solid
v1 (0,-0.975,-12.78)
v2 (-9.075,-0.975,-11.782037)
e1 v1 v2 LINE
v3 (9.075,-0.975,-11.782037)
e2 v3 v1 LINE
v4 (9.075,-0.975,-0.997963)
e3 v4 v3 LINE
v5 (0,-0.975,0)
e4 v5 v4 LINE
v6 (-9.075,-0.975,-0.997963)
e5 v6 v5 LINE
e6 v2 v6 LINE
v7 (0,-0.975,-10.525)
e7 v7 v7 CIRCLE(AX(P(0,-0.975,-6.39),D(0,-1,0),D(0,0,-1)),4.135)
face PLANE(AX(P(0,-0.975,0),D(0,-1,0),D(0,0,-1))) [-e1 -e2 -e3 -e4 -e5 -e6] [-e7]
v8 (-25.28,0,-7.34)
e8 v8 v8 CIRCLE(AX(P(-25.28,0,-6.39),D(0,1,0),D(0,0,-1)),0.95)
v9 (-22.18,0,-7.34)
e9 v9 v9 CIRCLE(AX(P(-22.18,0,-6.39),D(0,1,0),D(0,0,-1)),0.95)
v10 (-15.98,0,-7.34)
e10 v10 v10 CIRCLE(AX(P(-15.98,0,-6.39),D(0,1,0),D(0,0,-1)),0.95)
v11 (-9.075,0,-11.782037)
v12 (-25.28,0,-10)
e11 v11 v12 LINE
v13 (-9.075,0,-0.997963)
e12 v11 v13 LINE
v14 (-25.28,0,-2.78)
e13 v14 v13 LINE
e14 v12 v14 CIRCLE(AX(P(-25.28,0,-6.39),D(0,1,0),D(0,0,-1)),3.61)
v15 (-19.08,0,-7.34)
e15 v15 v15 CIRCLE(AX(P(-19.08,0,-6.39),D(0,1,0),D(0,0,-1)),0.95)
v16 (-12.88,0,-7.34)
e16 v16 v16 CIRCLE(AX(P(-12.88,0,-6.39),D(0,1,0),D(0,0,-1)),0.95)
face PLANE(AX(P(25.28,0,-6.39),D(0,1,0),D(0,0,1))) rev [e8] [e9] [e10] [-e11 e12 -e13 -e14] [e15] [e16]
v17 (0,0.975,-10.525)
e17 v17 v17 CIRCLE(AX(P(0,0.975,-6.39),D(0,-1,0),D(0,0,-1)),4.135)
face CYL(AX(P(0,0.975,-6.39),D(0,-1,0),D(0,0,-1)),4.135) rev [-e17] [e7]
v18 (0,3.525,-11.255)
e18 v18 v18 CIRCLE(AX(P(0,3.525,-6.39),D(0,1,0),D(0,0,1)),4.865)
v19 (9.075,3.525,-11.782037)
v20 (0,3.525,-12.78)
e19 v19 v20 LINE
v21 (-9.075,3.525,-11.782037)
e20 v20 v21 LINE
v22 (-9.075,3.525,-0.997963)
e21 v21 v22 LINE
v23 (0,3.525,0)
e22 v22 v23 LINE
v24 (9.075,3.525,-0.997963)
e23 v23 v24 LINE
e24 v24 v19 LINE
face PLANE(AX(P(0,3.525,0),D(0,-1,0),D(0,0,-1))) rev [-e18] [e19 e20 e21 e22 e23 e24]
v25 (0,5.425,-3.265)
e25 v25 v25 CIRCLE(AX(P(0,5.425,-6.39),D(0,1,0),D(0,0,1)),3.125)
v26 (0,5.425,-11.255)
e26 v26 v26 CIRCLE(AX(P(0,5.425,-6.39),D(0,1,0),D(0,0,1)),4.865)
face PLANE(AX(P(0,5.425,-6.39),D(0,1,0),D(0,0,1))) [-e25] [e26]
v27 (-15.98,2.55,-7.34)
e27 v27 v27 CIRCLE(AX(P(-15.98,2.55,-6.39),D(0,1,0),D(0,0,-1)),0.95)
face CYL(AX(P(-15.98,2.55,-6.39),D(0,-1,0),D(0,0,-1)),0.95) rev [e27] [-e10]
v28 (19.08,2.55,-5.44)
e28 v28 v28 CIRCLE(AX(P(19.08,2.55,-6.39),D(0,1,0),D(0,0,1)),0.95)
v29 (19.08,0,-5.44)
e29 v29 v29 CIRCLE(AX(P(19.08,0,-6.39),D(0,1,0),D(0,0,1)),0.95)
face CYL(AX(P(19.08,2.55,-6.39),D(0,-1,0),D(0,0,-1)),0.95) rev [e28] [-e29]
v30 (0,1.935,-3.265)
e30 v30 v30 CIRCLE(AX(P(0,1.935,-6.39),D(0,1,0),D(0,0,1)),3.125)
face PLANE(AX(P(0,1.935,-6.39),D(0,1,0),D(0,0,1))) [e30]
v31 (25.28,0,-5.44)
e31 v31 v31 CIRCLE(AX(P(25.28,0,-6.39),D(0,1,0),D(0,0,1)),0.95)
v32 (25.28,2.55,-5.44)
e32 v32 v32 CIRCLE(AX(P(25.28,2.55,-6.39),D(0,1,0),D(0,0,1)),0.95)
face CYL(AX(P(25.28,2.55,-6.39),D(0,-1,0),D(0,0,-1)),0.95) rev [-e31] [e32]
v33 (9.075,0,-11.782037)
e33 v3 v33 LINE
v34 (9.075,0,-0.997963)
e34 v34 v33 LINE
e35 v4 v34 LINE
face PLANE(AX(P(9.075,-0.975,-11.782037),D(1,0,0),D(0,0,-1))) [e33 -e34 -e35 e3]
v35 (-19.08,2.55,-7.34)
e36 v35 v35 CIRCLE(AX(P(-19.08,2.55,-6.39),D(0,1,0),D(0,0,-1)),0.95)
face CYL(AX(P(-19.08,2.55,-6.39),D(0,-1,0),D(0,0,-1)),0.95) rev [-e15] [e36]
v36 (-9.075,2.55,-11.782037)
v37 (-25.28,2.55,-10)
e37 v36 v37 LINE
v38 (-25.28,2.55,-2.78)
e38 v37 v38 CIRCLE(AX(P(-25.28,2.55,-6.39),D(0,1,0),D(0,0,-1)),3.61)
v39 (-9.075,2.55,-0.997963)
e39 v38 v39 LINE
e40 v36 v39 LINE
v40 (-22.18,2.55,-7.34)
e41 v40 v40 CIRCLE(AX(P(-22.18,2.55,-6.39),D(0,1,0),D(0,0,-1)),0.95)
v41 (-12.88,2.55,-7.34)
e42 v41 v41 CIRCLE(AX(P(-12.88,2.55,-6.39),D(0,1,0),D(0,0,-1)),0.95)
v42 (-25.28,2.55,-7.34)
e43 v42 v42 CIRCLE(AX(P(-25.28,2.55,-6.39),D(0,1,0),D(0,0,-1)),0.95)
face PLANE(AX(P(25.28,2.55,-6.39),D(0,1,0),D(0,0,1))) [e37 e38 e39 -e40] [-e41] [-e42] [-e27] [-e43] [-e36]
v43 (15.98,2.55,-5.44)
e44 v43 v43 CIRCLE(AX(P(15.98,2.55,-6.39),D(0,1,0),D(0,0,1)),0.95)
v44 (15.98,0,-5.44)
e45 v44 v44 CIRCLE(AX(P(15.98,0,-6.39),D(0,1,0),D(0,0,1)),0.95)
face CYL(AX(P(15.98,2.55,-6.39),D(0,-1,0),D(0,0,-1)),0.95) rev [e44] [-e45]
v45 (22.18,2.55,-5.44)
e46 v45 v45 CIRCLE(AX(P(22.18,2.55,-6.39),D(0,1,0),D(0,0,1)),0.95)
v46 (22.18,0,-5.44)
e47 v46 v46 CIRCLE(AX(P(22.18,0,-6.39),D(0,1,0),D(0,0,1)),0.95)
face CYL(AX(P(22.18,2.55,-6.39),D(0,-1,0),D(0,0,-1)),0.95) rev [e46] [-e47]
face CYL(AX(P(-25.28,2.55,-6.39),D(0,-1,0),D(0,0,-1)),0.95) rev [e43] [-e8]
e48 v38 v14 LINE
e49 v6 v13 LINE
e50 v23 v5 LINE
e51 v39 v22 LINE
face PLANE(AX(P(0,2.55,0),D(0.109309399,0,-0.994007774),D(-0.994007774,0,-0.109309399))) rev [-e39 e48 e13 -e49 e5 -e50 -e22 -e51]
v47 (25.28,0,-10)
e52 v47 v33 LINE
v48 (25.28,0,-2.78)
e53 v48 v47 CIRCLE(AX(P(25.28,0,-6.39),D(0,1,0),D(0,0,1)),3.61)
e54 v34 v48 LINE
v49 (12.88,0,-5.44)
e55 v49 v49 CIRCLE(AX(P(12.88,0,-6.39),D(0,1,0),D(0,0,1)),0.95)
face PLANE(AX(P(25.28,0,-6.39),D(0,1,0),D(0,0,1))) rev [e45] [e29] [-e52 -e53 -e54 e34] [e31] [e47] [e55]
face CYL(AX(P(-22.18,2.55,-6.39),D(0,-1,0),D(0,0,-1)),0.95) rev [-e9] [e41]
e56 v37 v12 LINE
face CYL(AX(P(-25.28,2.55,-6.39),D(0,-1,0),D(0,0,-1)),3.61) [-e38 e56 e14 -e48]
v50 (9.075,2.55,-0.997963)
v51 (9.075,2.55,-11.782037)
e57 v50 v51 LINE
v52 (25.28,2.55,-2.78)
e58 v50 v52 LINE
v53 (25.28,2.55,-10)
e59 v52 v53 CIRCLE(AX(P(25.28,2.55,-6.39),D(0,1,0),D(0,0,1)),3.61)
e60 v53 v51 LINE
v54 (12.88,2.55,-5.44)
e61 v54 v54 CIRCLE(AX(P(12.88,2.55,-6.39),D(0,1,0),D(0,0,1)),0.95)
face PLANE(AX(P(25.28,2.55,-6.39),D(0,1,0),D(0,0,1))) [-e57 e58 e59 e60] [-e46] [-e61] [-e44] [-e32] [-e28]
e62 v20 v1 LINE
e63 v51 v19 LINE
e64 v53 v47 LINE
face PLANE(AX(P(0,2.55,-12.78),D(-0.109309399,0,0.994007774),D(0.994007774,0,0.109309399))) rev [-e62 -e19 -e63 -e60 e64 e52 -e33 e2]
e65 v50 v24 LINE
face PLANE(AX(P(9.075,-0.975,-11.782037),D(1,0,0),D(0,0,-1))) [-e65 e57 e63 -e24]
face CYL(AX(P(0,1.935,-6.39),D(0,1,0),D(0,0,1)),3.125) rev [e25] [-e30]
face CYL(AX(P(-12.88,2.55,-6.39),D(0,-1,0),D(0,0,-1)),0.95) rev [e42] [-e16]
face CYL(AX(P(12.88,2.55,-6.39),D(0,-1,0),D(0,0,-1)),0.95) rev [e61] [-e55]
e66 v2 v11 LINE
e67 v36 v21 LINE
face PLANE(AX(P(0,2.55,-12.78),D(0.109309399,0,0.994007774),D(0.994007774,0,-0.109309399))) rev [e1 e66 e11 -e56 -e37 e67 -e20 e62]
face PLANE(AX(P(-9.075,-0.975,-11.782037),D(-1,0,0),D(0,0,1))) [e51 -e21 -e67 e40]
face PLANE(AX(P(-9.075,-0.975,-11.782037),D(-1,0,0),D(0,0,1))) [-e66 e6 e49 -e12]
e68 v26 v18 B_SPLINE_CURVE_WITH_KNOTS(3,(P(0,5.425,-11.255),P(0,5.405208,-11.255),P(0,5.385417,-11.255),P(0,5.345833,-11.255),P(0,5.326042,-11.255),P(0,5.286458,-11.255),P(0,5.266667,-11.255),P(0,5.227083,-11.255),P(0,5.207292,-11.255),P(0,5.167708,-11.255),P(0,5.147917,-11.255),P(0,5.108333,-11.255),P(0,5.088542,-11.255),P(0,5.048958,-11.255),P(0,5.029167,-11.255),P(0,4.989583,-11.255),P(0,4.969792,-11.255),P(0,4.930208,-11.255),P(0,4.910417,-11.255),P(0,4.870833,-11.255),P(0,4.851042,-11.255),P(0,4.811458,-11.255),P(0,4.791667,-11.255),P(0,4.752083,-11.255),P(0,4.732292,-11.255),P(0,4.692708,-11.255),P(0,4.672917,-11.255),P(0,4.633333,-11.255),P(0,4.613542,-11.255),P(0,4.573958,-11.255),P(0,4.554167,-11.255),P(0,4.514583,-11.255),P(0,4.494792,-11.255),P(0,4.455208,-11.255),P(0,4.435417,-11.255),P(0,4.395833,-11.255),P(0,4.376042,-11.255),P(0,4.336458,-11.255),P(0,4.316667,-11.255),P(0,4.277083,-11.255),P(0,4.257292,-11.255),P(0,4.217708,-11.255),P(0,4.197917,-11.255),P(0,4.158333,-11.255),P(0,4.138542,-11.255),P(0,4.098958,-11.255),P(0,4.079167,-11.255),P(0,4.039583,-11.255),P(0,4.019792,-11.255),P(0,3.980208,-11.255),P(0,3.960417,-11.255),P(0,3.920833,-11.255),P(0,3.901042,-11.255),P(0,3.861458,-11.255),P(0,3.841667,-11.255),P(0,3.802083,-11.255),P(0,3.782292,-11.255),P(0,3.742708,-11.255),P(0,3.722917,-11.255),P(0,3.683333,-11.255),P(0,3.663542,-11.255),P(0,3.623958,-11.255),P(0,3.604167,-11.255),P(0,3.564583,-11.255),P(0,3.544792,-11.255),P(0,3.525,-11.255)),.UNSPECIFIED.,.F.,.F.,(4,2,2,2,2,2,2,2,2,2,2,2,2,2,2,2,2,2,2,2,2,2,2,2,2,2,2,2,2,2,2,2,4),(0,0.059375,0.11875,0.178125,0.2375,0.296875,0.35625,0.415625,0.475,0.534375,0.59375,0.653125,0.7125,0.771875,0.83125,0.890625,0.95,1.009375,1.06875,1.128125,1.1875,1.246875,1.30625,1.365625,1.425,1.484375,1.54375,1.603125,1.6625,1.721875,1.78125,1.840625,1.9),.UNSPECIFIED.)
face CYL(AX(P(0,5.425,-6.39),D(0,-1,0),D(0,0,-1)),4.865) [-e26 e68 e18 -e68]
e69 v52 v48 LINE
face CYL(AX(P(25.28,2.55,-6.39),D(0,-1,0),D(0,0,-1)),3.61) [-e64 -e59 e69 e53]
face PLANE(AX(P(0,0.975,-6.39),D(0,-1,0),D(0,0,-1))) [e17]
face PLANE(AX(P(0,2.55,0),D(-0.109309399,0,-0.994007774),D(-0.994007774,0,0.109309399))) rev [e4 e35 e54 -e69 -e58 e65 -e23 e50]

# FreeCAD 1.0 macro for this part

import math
import FreeCAD as App
import Part
import Sketcher

V = App.Vector
Q = App.Units.Quantity

doc = App.newDocument("Part")
params = doc.addObject("Spreadsheet::Sheet", "Params")
for row, (alias, value) in enumerate([
    ("sketch1_diameter", "1.9 mm"),
    ("sketch1_radius", "3.61 mm"),
    ("pad1_length", "2.55 mm"),
    ("pad2_length", "0.975 mm"),
    ("pad2_length2", "3.525 mm"),
    ("sketch3_diameter", "8.27 mm"),
    ("pocket1_length", "1.95 mm"),
    ("sketch4_diameter", "9.73 mm"),
    ("pad3_length", "1.9 mm"),
    ("sketch5_diameter", "6.25 mm"),
    ("pocket2_length", "3.49 mm"),
], start=1):
    params.set(f"A{row}", alias)
    params.set(f"B{row}", "=" + value)
    params.setAlias(f"B{row}", alias)

body = doc.addObject("PartDesign::Body", "Body")

# Sketch on XZ plane
sketch1 = body.newObject("Sketcher::SketchObject", "Sketch")
sketch1.AttachmentSupport = (doc.getObject("XZ_Plane"), [""])
sketch1.MapMode = "FlatFace"
sketch1.addGeometry(Part.LineSegment(V(25.3, -10, 0), V(0, -12.8, 0)), False)
sketch1.addGeometry(Part.LineSegment(V(0, -12.8, 0), V(-25.3, -10, 0)), False)
sketch1.addGeometry(Part.ArcOfCircle(Part.Circle(V(-25.3, -6.4, 0), V(0, 0, 1), 3.6), math.radians(90), math.radians(270)), False)
sketch1.addGeometry(Part.LineSegment(V(-25.3, -2.8, 0), V(0, 0, 0)), False)
sketch1.addGeometry(Part.LineSegment(V(0, 0, 0), V(25.3, -2.8, 0)), False)
sketch1.addGeometry(Part.ArcOfCircle(Part.Circle(V(25.3, -6.4, 0), V(0, 0, 1), 3.6), math.radians(-90), math.radians(90)), False)
sketch1.addGeometry(Part.Circle(V(25.3, -6.4, 0), V(0, 0, 1), 0.9), False)
sketch1.addGeometry(Part.Circle(V(22.2, -6.4, 0), V(0, 0, 1), 0.9), False)
sketch1.addGeometry(Part.Circle(V(19.1, -6.4, 0), V(0, 0, 1), 0.9), False)
sketch1.addGeometry(Part.Circle(V(16, -6.4, 0), V(0, 0, 1), 0.9), False)
sketch1.addGeometry(Part.Circle(V(12.9, -6.4, 0), V(0, 0, 1), 0.9), False)
sketch1.addGeometry(Part.Circle(V(-12.9, -6.4, 0), V(0, 0, 1), 0.9), False)
sketch1.addGeometry(Part.Circle(V(-16, -6.4, 0), V(0, 0, 1), 0.9), False)
sketch1.addGeometry(Part.Circle(V(-19.1, -6.4, 0), V(0, 0, 1), 0.9), False)
sketch1.addGeometry(Part.Circle(V(-22.2, -6.4, 0), V(0, 0, 1), 0.9), False)
sketch1.addGeometry(Part.Circle(V(-25.3, -6.4, 0), V(0, 0, 1), 0.9), False)
sketch1.addConstraint(Sketcher.Constraint("Coincident", 0, 2, 1, 1))
sketch1.addConstraint(Sketcher.Constraint("Coincident", 1, 2, 2, 2))
sketch1.addConstraint(Sketcher.Constraint("Coincident", 2, 1, 3, 1))
sketch1.addConstraint(Sketcher.Constraint("Coincident", 3, 2, 4, 1))
sketch1.addConstraint(Sketcher.Constraint("Coincident", 4, 2, 5, 2))
sketch1.addConstraint(Sketcher.Constraint("Coincident", 5, 1, 0, 1))
sketch1.addConstraint(Sketcher.Constraint("Coincident", 3, 2, -1, 1))
sketch1.addConstraint(Sketcher.Constraint("Coincident", 6, 3, 5, 3))
sketch1.addConstraint(Sketcher.Constraint("Coincident", 15, 3, 2, 3))
sketch1.addConstraint(Sketcher.Constraint("Equal", 2, 5))
sketch1.addConstraint(Sketcher.Constraint("Equal", 6, 7))
sketch1.addConstraint(Sketcher.Constraint("Equal", 7, 8))
sketch1.addConstraint(Sketcher.Constraint("Equal", 8, 9))
sketch1.addConstraint(Sketcher.Constraint("Equal", 9, 10))
sketch1.addConstraint(Sketcher.Constraint("Equal", 10, 11))
sketch1.addConstraint(Sketcher.Constraint("Equal", 11, 12))
sketch1.addConstraint(Sketcher.Constraint("Equal", 12, 13))
sketch1.addConstraint(Sketcher.Constraint("Equal", 13, 14))
sketch1.addConstraint(Sketcher.Constraint("Equal", 14, 15))
sketch1.addConstraint(Sketcher.Constraint("Symmetric", 2, 3, 5, 3, -2))
sketch1.addConstraint(Sketcher.Constraint("Symmetric", 10, 3, 11, 3, -2))
sketch1.addConstraint(Sketcher.Constraint("Symmetric", 9, 3, 12, 3, -2))
sketch1.addConstraint(Sketcher.Constraint("Symmetric", 8, 3, 13, 3, -2))
sketch1.addConstraint(Sketcher.Constraint("Symmetric", 7, 3, 14, 3, -2))
sketch1.addConstraint(Sketcher.Constraint("PointOnObject", 0, 2, -2))
sketch1.addConstraint(Sketcher.Constraint("Parallel", 0, 3))
sketch1.addConstraint(Sketcher.Constraint("Parallel", 1, 4))
sketch1.addConstraint(Sketcher.Constraint("Horizontal", 6, 3, 7, 3))
sketch1.addConstraint(Sketcher.Constraint("Horizontal", 7, 3, 8, 3))
sketch1.addConstraint(Sketcher.Constraint("Horizontal", 8, 3, 9, 3))
sketch1.addConstraint(Sketcher.Constraint("Horizontal", 9, 3, 10, 3))
sketch1.addConstraint(Sketcher.Constraint("Vertical", 15, 3, 1, 2))
sketch1.addConstraint(Sketcher.Constraint("Vertical", 1, 2, 2, 1))
sketch1.addConstraint(Sketcher.Constraint("Vertical", 6, 3, 4, 2))
sketch1.addConstraint(Sketcher.Constraint("Diameter", 6, Q("1.9 mm")))
sketch1.addConstraint(Sketcher.Constraint("Radius", 2, Q("3.61 mm")))
sketch1.addConstraint(Sketcher.Constraint("DistanceY", 1, 2, -1, 1, Q("10 mm")))
sketch1.addConstraint(Sketcher.Constraint("DistanceX", 7, 3, 5, 3, Q("3.1 mm")))
sketch1.addConstraint(Sketcher.Constraint("DistanceX", 8, 3, 7, 3, Q("3.1 mm")))
sketch1.addConstraint(Sketcher.Constraint("DistanceX", 9, 3, 8, 3, Q("3.1 mm")))
sketch1.addConstraint(Sketcher.Constraint("DistanceX", 10, 3, 9, 3, Q("3.1 mm")))
sketch1.addConstraint(Sketcher.Constraint("DistanceX", 2, 3, -1, 1, Q("25.28 mm")))
sketch1.setExpression("Constraints[34]", "Params.sketch1_diameter")
sketch1.setExpression("Constraints[35]", "Params.sketch1_radius")
pad1 = body.newObject("PartDesign::Pad", "Pad")
pad1.Profile = sketch1
pad1.setExpression("Length", "Params.pad1_length")
pad1.Reversed = True

# Sketch on XZ plane
sketch2 = body.newObject("Sketcher::SketchObject", "Sketch001")
sketch2.AttachmentSupport = (doc.getObject("XZ_Plane"), [""])
sketch2.MapMode = "FlatFace"
sketch2.AttachmentOffset = App.Placement(V(0, 0, -2.55), App.Rotation())
sketch2.addGeometry(Part.LineSegment(V(-9, -12, 0), V(-9, -1, 0)), False)
sketch2.addGeometry(Part.LineSegment(V(-9, -1, 0), V(0, 0, 0)), False)
sketch2.addGeometry(Part.LineSegment(V(0, 0, 0), V(9, -1, 0)), False)
sketch2.addGeometry(Part.LineSegment(V(9, -1, 0), V(9, -12, 0)), False)
sketch2.addGeometry(Part.LineSegment(V(9, -12, 0), V(0, -13, 0)), False)
sketch2.addGeometry(Part.LineSegment(V(0, -13, 0), V(-9, -12, 0)), False)
sketch2.addConstraint(Sketcher.Constraint("Coincident", 0, 2, 1, 1))
sketch2.addConstraint(Sketcher.Constraint("Coincident", 1, 2, 2, 1))
sketch2.addConstraint(Sketcher.Constraint("Coincident", 2, 2, 3, 1))
sketch2.addConstraint(Sketcher.Constraint("Coincident", 3, 2, 4, 1))
sketch2.addConstraint(Sketcher.Constraint("Coincident", 4, 2, 5, 1))
sketch2.addConstraint(Sketcher.Constraint("Coincident", 5, 2, 0, 1))
sketch2.addConstraint(Sketcher.Constraint("Vertical", 0))
sketch2.addConstraint(Sketcher.Constraint("Vertical", 3))
sketch2.addConstraint(Sketcher.Constraint("Coincident", 1, 2, -1, 1))
sketch2.addConstraint(Sketcher.Constraint("Symmetric", 0, 2, 2, 2, -2))
sketch2.addConstraint(Sketcher.Constraint("PointOnObject", 4, 2, -2))
sketch2.addConstraint(Sketcher.Constraint("Parallel", 1, 4))
sketch2.addConstraint(Sketcher.Constraint("Parallel", 2, 5))
sketch2.addConstraint(Sketcher.Constraint("DistanceY", 4, 2, -1, 1, Q("12.78 mm")))
sketch2.addConstraint(Sketcher.Constraint("DistanceX", 0, 2, 2, 2, Q("18.15 mm")))
sketch2.addConstraint(Sketcher.Constraint("DistanceY", 0, 1, 0, 2, Q("10.784074 mm")))
pad2 = body.newObject("PartDesign::Pad", "Pad001")
pad2.Profile = sketch2
pad2.Type = "TwoLengths"
pad2.setExpression("Length", "Params.pad2_length")
pad2.setExpression("Length2", "Params.pad2_length2")
pad2.Reversed = True

# Sketch on XZ plane
sketch3 = body.newObject("Sketcher::SketchObject", "Sketch002")
sketch3.AttachmentSupport = (doc.getObject("XZ_Plane"), [""])
sketch3.MapMode = "FlatFace"
sketch3.AttachmentOffset = App.Placement(V(0, 0, 0.975), App.Rotation())
sketch3.addGeometry(Part.Circle(V(0, -6.4, 0), V(0, 0, 1), 4.1), False)
sketch3.addConstraint(Sketcher.Constraint("PointOnObject", 0, 3, -2))
sketch3.addConstraint(Sketcher.Constraint("Diameter", 0, Q("8.27 mm")))
sketch3.addConstraint(Sketcher.Constraint("DistanceY", 0, 3, -1, 1, Q("6.39 mm")))
sketch3.setExpression("Constraints[1]", "Params.sketch3_diameter")
pocket1 = body.newObject("PartDesign::Pocket", "Pocket")
pocket1.Profile = sketch3
pocket1.setExpression("Length", "Params.pocket1_length")

# Sketch on XZ plane
sketch4 = body.newObject("Sketcher::SketchObject", "Sketch003")
sketch4.AttachmentSupport = (doc.getObject("XZ_Plane"), [""])
sketch4.MapMode = "FlatFace"
sketch4.AttachmentOffset = App.Placement(V(0, 0, -3.525), App.Rotation())
sketch4.addGeometry(Part.Circle(V(0, -6.4, 0), V(0, 0, 1), 4.9), False)
sketch4.addConstraint(Sketcher.Constraint("PointOnObject", 0, 3, -2))
sketch4.addConstraint(Sketcher.Constraint("Diameter", 0, Q("9.73 mm")))
sketch4.addConstraint(Sketcher.Constraint("DistanceY", 0, 3, -1, 1, Q("6.39 mm")))
sketch4.setExpression("Constraints[1]", "Params.sketch4_diameter")
pad3 = body.newObject("PartDesign::Pad", "Pad002")
pad3.Profile = sketch4
pad3.setExpression("Length", "Params.pad3_length")
pad3.Reversed = True

# Sketch on XZ plane
sketch5 = body.newObject("Sketcher::SketchObject", "Sketch004")
sketch5.AttachmentSupport = (doc.getObject("XZ_Plane"), [""])
sketch5.MapMode = "FlatFace"
sketch5.AttachmentOffset = App.Placement(V(0, 0, -5.425), App.Rotation())
sketch5.addGeometry(Part.Circle(V(0, -6.4, 0), V(0, 0, 1), 3.1), False)
sketch5.addConstraint(Sketcher.Constraint("PointOnObject", 0, 3, -2))
sketch5.addConstraint(Sketcher.Constraint("Diameter", 0, Q("6.25 mm")))
sketch5.addConstraint(Sketcher.Constraint("DistanceY", 0, 3, -1, 1, Q("6.39 mm")))
sketch5.setExpression("Constraints[1]", "Params.sketch5_diameter")
pocket2 = body.newObject("PartDesign::Pocket", "Pocket001")
pocket2.Profile = sketch5
pocket2.setExpression("Length", "Params.pocket2_length")
pocket2.Reversed = True

doc.recompute()
